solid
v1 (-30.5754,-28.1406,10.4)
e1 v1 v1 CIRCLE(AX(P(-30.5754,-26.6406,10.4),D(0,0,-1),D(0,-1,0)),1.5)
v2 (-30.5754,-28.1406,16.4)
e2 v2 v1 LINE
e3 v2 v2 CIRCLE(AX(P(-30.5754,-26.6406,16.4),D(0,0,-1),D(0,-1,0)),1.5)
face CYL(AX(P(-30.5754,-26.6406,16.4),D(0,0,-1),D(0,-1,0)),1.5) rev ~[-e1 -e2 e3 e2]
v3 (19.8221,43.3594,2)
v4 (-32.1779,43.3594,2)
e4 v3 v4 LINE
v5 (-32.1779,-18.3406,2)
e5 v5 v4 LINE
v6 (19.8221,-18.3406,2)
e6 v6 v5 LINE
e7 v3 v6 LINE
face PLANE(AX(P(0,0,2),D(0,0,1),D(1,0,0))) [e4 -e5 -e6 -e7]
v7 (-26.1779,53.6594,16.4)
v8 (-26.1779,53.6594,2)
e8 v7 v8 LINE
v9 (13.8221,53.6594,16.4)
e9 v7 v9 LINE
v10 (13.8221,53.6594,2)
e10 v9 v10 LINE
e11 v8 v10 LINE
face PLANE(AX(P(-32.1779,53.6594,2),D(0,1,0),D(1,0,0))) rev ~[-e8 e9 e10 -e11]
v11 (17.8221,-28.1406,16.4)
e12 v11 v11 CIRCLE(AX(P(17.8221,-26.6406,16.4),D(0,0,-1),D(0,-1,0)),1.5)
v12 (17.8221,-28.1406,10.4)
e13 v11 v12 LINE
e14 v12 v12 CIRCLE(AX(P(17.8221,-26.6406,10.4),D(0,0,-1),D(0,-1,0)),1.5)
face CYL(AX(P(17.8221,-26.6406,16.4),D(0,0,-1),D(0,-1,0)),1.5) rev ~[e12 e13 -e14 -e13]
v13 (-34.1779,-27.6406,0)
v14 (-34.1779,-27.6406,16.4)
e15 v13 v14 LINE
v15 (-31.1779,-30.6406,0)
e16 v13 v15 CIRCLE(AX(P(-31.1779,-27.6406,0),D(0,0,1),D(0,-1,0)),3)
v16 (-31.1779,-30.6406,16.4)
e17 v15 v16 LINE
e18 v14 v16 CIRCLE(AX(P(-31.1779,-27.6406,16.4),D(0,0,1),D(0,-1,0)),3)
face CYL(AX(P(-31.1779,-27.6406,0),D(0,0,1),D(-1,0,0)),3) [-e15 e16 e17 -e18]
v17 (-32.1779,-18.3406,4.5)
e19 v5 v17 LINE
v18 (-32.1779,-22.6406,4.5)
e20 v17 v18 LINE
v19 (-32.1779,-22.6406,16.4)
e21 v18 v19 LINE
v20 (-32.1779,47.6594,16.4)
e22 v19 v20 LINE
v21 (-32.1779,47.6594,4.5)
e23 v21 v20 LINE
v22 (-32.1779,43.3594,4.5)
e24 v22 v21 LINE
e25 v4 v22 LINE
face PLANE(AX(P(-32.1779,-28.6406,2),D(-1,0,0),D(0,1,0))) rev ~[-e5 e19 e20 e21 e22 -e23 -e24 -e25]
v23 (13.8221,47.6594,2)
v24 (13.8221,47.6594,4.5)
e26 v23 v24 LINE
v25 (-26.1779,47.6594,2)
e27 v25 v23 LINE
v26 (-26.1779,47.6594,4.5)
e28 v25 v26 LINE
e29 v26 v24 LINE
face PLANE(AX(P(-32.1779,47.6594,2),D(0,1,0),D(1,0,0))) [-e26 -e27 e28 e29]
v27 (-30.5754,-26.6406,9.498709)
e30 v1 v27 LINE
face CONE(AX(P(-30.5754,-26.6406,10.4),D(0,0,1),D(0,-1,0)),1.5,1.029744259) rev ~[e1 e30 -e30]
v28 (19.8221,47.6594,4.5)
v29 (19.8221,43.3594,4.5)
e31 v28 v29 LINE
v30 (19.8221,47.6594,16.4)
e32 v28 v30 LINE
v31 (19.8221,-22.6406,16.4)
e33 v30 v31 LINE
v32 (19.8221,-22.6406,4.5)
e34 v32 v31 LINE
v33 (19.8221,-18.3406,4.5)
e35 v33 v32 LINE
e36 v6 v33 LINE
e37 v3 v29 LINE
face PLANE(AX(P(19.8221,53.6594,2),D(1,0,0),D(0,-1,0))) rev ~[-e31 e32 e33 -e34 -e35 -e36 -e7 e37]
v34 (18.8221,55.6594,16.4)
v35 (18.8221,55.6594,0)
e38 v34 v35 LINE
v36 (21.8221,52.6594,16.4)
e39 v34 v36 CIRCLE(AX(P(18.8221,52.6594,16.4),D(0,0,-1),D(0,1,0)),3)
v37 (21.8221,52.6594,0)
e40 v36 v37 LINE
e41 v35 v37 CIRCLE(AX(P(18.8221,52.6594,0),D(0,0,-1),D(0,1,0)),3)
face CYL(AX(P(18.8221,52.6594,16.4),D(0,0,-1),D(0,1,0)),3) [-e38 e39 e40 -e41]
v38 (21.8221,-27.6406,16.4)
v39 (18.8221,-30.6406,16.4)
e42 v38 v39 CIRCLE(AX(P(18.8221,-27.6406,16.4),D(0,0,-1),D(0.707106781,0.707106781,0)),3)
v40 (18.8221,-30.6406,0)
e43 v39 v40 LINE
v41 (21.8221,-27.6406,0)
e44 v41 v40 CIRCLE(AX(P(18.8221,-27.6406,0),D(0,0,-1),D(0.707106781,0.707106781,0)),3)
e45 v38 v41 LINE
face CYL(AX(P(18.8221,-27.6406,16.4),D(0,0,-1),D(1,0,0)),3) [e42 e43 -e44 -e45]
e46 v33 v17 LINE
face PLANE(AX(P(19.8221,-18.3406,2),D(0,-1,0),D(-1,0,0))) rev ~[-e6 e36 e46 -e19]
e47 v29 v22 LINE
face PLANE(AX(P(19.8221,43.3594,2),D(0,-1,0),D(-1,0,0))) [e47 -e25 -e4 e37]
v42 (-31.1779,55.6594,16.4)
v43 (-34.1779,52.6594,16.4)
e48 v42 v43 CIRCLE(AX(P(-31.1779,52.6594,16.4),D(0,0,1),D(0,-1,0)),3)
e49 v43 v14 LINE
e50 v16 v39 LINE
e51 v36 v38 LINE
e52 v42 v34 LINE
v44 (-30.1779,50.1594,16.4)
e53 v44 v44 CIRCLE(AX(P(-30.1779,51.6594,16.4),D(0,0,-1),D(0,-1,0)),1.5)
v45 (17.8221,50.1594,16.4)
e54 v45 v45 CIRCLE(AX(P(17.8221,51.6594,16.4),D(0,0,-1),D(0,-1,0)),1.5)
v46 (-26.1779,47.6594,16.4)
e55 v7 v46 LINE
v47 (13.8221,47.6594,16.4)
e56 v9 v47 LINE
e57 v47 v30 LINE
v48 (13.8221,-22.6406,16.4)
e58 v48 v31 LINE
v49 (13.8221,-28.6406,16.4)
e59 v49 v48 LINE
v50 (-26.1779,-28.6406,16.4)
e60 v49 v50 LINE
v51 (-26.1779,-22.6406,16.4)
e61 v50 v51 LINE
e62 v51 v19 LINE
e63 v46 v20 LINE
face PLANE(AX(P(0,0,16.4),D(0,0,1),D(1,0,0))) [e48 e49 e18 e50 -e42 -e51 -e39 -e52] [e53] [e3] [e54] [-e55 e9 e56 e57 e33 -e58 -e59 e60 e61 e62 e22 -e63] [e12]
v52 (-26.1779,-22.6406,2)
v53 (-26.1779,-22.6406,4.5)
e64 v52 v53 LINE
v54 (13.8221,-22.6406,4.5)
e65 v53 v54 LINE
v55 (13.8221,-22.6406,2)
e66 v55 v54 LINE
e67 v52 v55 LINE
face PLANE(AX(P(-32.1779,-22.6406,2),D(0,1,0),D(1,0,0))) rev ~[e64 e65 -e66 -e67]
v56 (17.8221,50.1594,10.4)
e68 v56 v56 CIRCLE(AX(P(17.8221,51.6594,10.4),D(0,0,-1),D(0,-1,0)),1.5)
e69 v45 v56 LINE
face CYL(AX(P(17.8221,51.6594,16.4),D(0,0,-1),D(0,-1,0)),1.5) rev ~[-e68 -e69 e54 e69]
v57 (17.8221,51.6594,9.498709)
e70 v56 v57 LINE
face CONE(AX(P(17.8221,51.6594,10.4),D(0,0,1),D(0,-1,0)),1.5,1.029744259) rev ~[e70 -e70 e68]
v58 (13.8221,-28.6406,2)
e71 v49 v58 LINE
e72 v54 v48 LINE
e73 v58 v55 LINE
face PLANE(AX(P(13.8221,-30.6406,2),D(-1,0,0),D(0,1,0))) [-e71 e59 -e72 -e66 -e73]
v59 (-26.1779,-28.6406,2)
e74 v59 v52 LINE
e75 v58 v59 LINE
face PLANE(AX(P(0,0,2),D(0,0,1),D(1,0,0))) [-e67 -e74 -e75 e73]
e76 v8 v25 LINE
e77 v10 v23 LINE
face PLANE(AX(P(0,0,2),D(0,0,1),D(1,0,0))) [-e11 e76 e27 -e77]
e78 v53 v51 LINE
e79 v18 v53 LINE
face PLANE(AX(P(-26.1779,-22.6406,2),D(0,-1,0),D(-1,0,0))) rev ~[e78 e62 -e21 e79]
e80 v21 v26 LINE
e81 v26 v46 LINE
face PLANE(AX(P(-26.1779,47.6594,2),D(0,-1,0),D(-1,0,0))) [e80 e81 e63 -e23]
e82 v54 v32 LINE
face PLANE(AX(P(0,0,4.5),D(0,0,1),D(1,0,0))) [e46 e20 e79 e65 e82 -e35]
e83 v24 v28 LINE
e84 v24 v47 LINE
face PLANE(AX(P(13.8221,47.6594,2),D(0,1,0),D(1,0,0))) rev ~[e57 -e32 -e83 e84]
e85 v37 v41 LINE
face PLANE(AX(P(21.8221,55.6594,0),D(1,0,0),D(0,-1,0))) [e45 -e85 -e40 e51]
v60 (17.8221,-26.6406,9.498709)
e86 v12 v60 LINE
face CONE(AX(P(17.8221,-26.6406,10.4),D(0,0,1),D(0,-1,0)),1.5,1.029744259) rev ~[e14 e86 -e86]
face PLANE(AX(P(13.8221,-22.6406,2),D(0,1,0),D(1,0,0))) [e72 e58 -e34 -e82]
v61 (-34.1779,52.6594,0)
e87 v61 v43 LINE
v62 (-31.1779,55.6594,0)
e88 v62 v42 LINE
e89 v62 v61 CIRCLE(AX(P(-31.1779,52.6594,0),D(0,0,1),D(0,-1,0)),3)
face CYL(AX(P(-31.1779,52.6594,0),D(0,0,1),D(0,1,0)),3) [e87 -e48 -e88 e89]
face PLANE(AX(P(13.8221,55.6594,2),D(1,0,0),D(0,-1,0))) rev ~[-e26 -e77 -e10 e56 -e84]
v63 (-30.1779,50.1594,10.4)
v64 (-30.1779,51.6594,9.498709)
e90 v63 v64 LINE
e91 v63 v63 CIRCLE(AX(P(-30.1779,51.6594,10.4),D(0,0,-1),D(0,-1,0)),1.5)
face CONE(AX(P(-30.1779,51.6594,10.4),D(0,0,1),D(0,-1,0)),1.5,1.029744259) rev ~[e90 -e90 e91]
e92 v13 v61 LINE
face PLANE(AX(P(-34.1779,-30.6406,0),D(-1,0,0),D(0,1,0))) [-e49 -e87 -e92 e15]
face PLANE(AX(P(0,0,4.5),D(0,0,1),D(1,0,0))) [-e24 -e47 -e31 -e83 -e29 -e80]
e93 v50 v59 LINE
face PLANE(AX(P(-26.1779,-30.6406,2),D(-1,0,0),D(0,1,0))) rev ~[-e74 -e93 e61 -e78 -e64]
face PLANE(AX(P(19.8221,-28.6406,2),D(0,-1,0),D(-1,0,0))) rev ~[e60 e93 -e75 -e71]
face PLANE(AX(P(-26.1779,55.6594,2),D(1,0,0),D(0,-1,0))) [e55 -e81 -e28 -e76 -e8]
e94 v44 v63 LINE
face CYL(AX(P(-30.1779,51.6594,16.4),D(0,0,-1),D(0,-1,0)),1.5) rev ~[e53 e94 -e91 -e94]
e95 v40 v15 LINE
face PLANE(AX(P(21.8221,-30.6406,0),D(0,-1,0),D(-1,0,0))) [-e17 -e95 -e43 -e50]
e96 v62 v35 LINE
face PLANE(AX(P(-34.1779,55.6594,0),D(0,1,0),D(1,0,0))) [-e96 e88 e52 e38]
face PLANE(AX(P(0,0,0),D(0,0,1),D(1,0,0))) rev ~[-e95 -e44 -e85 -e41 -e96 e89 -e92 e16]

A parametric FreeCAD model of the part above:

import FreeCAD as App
import Part
import Sketcher


def edges_at(feature, points):
    """Names of the edges that pass closest to the given points."""
    edges = feature.Shape.Edges
    near = lambda p: min(range(len(edges)), key=lambda i: edges[i].distToShape(Part.Vertex(*p))[0])
    return sorted({f"Edge{near(p) + 1}" for p in points})


def add_polygon(sketch, points):
    """Adds a closed chain of lines whose ends are joined by coincident constraints."""
    first, n = sketch.GeometryCount, len(points)
    for a, b in zip(points, points[1:] + points[:1]):
        sketch.addGeometry(Part.LineSegment(App.Vector(*a, 0), App.Vector(*b, 0)), False)
    for i in range(n):
        sketch.addConstraint(Sketcher.Constraint("Coincident", first + i, 2, first + (i + 1) % n, 1))

doc = App.newDocument("Part")
body = doc.addObject("PartDesign::Body", "Body")

sketch1 = body.newObject("Sketcher::SketchObject", "Sketch")
sketch1.AttachmentSupport = (doc.getObject("XY_Plane"), [""])
sketch1.MapMode = "FlatFace"
add_polygon(sketch1, [(21.8221, 55.6594), (-34.1779, 55.6594), (-34.1779, -30.6406), (21.8221, -30.6406)])
sketch1.addConstraint([
    Sketcher.Constraint("Horizontal", 0),
    Sketcher.Constraint("Vertical", 1),
    Sketcher.Constraint("Horizontal", 2),
    Sketcher.Constraint("Vertical", 3),
    Sketcher.Constraint("DistanceX", 0, 2, 0, 1, 56.0),
    Sketcher.Constraint("DistanceY", 1, 2, 1, 1, 86.3),
    Sketcher.Constraint("DistanceX", 0, 2, -1, 1, 34.178),
    Sketcher.Constraint("DistanceY", -1, 1, 0, 2, 55.6594),
])
pad1 = body.newObject("PartDesign::Pad", "Pad")
pad1.Profile = sketch1
pad1.Length = 2

sketch2 = body.newObject("Sketcher::SketchObject", "Sketch001")
sketch2.AttachmentSupport = (doc.getObject("XY_Plane"), [""])
sketch2.MapMode = "FlatFace"
sketch2.AttachmentOffset = App.Placement(App.Vector(0, 0, 2), App.Rotation())
add_polygon(sketch2, [(21.8221, 55.6594), (-34.1779, 55.6594), (-34.1779, -30.6406), (21.8221, -30.6406)])
add_polygon(sketch2, [(-32.1779, -28.6406), (-32.1779, 53.6594), (19.8221, 53.6594), (19.8221, -28.6406)])
sketch2.addConstraint([
    Sketcher.Constraint("Horizontal", 0),
    Sketcher.Constraint("Vertical", 1),
    Sketcher.Constraint("Horizontal", 2),
    Sketcher.Constraint("Vertical", 3),
    Sketcher.Constraint("Vertical", 4),
    Sketcher.Constraint("Horizontal", 5),
    Sketcher.Constraint("Vertical", 6),
    Sketcher.Constraint("Horizontal", 7),
    Sketcher.Constraint("DistanceX", 0, 2, 4, 2, 2.0),
    Sketcher.Constraint("DistanceY", 4, 2, 0, 2, 2.0),
    Sketcher.Constraint("DistanceX", 5, 2, 3, 2, 2.0),
    Sketcher.Constraint("DistanceY", 2, 2, 6, 2, 2.0),
    Sketcher.Constraint("DistanceX", 0, 2, 0, 1, 56.0),
    Sketcher.Constraint("DistanceY", 1, 2, 1, 1, 86.3),
    Sketcher.Constraint("DistanceX", 0, 2, -1, 1, 34.178),
    Sketcher.Constraint("DistanceY", -1, 1, 0, 2, 55.6594),
])
pad2 = body.newObject("PartDesign::Pad", "Pad001")
pad2.Profile = sketch2
pad2.Length = 14.4

sketch3 = body.newObject("Sketcher::SketchObject", "Sketch002")
sketch3.AttachmentSupport = (doc.getObject("XY_Plane"), [""])
sketch3.MapMode = "FlatFace"
sketch3.AttachmentOffset = App.Placement(App.Vector(0, 0, 2), App.Rotation())
add_polygon(sketch3, [(-26.1779, 55.6594), (-34.1779, 55.6594), (-34.1779, 47.6594), (-26.1779, 47.6594)])
add_polygon(sketch3, [(21.8221, 47.6594), (21.8221, 55.6594), (13.8221, 55.6594), (13.8221, 47.6594)])
add_polygon(sketch3, [(-34.1779, -22.6406), (-34.1779, -30.6406), (-26.1779, -30.6406), (-26.1779, -22.6406)])
add_polygon(sketch3, [(13.8221, -22.6406), (13.8221, -30.6406), (21.8221, -30.6406), (21.8221, -22.6406)])
sketch3.addConstraint([
    Sketcher.Constraint("Horizontal", 0),
    Sketcher.Constraint("Vertical", 1),
    Sketcher.Constraint("Horizontal", 2),
    Sketcher.Constraint("Vertical", 3),
    Sketcher.Constraint("Vertical", 4),
    Sketcher.Constraint("Horizontal", 5),
    Sketcher.Constraint("Vertical", 6),
    Sketcher.Constraint("Horizontal", 7),
    Sketcher.Constraint("Vertical", 8),
    Sketcher.Constraint("Horizontal", 9),
    Sketcher.Constraint("Vertical", 10),
    Sketcher.Constraint("Horizontal", 11),
    Sketcher.Constraint("Vertical", 12),
    Sketcher.Constraint("Horizontal", 13),
    Sketcher.Constraint("Vertical", 14),
    Sketcher.Constraint("Horizontal", 15),
    Sketcher.Constraint("Horizontal", 3, 2, 4, 2),
    Sketcher.Constraint("Horizontal", 2, 2, 6, 2),
    Sketcher.Constraint("Horizontal", 9, 2, 12, 2),
    Sketcher.Constraint("Horizontal", 11, 2, 14, 2),
    Sketcher.Constraint("Vertical", 1, 2, 8, 2),
    Sketcher.Constraint("Vertical", 3, 2, 9, 2),
    Sketcher.Constraint("Vertical", 6, 2, 12, 2),
    Sketcher.Constraint("Vertical", 7, 2, 13, 2),
    Sketcher.Constraint("Equal", 2, 5),
    Sketcher.Constraint("Equal", 15, 1),
    Sketcher.Constraint("Equal", 6, 8),
    Sketcher.Constraint("DistanceX", 0, 2, 0, 1, 8.0),
    Sketcher.Constraint("DistanceX", 3, 2, 4, 2, 48.0),
    Sketcher.Constraint("DistanceY", 8, 2, 1, 2, 78.3),
    Sketcher.Constraint("DistanceX", 0, 2, -1, 1, 34.178),
    Sketcher.Constraint("DistanceY", -1, 1, 0, 2, 55.6594),
])
pad3 = body.newObject("PartDesign::Pad", "Pad002")
pad3.Profile = sketch3
pad3.Length = 14.4

sketch4 = body.newObject("Sketcher::SketchObject", "Sketch003")
sketch4.AttachmentSupport = (doc.getObject("XY_Plane"), [""])
sketch4.MapMode = "FlatFace"
sketch4.AttachmentOffset = App.Placement(App.Vector(0, 0, 16.4), App.Rotation())
sketch4.addGeometry([
    Part.Circle(App.Vector(-30.1779, 51.6594, 0), App.Vector(0, 0, 1), 1.5),
    Part.Circle(App.Vector(17.8221, 51.6594, 0), App.Vector(0, 0, 1), 1.5),
    Part.Circle(App.Vector(-30.5754, -26.6406, 0), App.Vector(0, 0, 1), 1.5),
    Part.Circle(App.Vector(17.8221, -26.6406, 0), App.Vector(0, 0, 1), 1.5),
], False)
sketch4.addConstraint([
    Sketcher.Constraint("Equal", 0, 1),
    Sketcher.Constraint("Equal", 1, 2),
    Sketcher.Constraint("Equal", 2, 3),
    Sketcher.Constraint("Horizontal", 0, 3, 1, 3),
    Sketcher.Constraint("Horizontal", 2, 3, 3, 3),
    Sketcher.Constraint("Vertical", 1, 3, 3, 3),
    Sketcher.Constraint("Diameter", 0, 3.0),
    Sketcher.Constraint("DistanceX", 0, 3, 1, 3, 48.0),
    Sketcher.Constraint("DistanceY", 2, 3, 0, 3, 78.3),
    Sketcher.Constraint("DistanceX", 0, 3, -1, 1, 30.178),
    Sketcher.Constraint("DistanceY", -1, 1, 0, 3, 51.6594),
    Sketcher.Constraint("DistanceX", 2, 3, -1, 1, 30.5754),
])
doc.recompute()
hole = body.newObject("PartDesign::Hole", "Hole")
hole.Profile = sketch4
hole.ThreadType = "None"
hole.Diameter = 3
hole.DepthType = "Dimension"
hole.Depth = 6
hole.DrillPoint = "Angled"
hole.DrillPointAngle = 118
doc.recompute()

fillet = body.newObject("PartDesign::Fillet", "Fillet")
fillet.Base = (hole, edges_at(hole, [
    (-34.178, 55.659, 8.2),
    (21.822, 55.659, 8.2),
    (-34.178, -30.641, 8.2),
    (21.822, -30.641, 8.2),
]))
fillet.Radius = 3

sketch5 = body.newObject("Sketcher::SketchObject", "Sketch004")
sketch5.AttachmentSupport = (doc.getObject("XY_Plane"), [""])
sketch5.MapMode = "FlatFace"
sketch5.AttachmentOffset = App.Placement(App.Vector(0, 0, 2), App.Rotation())
add_polygon(sketch5, [(19.8221, -22.6406), (19.8221, -18.3406), (-32.1779, -18.3406), (-32.1779, -22.6406)])
add_polygon(sketch5, [(19.8221, 47.6594), (-32.1779, 47.6594), (-32.1779, 43.3594), (19.8221, 43.3594)])
sketch5.addConstraint([
    Sketcher.Constraint("Vertical", 0),
    Sketcher.Constraint("Horizontal", 1),
    Sketcher.Constraint("Vertical", 2),
    Sketcher.Constraint("Horizontal", 3),
    Sketcher.Constraint("Horizontal", 4),
    Sketcher.Constraint("Vertical", 5),
    Sketcher.Constraint("Horizontal", 6),
    Sketcher.Constraint("Vertical", 7),
    Sketcher.Constraint("Vertical", 2, 2, 4, 2),
    Sketcher.Constraint("Vertical", 3, 2, 6, 2),
    Sketcher.Constraint("Equal", 2, 5),
    Sketcher.Constraint("DistanceY", 0, 1, 0, 2, 4.3),
    Sketcher.Constraint("DistanceX", 1, 2, 1, 1, 52.0),
    Sketcher.Constraint("DistanceY", 1, 2, 4, 2, 66.0),
    Sketcher.Constraint("DistanceX", -1, 1, 0, 2, 19.822),
    Sketcher.Constraint("DistanceY", 0, 2, -1, 1, 18.3406),
])
pad4 = body.newObject("PartDesign::Pad", "Pad003")
pad4.Profile = sketch5
pad4.Length = 2.5

doc.recompute()
